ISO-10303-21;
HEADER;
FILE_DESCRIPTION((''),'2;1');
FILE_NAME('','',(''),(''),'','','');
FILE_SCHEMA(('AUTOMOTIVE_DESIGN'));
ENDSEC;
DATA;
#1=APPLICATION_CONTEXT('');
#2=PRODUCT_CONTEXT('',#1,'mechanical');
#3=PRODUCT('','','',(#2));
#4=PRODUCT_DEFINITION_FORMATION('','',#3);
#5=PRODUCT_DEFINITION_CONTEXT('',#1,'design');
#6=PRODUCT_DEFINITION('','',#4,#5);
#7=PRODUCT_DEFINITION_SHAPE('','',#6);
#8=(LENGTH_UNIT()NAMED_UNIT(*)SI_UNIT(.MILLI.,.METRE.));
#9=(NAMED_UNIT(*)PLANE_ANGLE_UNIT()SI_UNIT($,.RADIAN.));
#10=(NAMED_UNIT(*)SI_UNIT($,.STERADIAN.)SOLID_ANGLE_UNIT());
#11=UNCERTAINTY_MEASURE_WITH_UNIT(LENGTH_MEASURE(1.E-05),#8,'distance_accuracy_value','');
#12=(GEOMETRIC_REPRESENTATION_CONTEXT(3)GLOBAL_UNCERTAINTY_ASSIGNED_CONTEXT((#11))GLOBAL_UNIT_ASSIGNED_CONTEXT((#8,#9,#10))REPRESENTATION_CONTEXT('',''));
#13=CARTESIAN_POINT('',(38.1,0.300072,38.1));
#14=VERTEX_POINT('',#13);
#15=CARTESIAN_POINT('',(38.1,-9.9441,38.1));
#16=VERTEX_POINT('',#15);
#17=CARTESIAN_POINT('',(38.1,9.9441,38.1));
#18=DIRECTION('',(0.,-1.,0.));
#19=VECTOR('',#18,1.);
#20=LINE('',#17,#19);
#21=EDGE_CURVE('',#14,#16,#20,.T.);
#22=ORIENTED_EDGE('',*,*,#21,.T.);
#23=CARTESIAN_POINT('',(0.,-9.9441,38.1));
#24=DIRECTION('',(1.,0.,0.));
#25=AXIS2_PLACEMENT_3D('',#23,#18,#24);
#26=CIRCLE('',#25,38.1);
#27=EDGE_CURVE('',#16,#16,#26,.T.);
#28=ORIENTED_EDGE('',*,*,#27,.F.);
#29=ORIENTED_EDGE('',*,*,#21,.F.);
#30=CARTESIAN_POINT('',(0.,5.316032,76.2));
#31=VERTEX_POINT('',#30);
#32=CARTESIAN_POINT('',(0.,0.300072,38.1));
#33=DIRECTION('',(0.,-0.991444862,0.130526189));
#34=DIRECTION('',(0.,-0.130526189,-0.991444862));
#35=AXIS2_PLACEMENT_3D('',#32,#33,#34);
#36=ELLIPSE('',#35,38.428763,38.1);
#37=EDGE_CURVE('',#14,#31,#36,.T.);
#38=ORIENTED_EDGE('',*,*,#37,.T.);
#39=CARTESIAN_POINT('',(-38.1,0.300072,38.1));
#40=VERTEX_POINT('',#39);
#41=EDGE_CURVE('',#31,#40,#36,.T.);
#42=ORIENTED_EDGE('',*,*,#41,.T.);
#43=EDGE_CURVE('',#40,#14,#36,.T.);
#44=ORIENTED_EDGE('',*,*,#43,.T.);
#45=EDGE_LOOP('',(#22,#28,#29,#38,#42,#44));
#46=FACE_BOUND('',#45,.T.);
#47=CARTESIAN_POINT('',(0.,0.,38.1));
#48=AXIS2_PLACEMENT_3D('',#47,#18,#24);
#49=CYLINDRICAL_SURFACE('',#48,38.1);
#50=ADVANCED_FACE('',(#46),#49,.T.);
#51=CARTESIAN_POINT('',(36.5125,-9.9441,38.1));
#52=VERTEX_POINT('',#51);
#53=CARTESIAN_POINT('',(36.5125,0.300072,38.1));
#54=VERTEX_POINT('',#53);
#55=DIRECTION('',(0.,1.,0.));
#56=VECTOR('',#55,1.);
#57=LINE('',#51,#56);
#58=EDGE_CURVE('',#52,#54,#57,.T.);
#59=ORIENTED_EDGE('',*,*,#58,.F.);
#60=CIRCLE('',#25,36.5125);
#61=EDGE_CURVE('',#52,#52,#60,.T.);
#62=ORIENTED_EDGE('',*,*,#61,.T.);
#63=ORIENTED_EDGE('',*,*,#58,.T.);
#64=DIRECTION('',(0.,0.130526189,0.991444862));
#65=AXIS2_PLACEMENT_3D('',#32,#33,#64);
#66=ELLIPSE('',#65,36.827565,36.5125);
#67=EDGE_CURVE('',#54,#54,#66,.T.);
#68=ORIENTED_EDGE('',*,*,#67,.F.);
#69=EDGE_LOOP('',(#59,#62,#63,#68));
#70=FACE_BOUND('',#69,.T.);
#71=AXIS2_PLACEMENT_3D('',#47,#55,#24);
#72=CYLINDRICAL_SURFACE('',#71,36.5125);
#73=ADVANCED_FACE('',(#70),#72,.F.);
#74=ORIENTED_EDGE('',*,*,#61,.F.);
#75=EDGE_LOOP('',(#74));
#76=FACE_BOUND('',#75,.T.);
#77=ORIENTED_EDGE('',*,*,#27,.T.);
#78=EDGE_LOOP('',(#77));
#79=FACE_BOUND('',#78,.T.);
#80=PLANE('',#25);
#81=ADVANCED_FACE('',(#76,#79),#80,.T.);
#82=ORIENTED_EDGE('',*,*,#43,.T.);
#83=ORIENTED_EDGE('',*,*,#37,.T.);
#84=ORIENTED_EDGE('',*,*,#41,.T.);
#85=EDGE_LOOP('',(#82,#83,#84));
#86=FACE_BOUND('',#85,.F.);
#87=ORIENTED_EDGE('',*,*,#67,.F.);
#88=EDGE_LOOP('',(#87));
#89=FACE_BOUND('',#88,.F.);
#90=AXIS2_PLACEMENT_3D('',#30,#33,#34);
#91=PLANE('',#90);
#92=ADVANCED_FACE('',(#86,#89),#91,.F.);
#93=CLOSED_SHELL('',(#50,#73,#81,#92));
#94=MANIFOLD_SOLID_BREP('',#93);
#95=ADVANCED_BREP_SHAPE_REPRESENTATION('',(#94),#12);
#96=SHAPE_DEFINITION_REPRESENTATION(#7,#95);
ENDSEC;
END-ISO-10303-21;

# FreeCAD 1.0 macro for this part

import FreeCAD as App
import Part
import Sketcher
from FreeCAD import Vector
Q = App.Units.Quantity

doc = App.newDocument("Part")
params = doc.addObject("Spreadsheet::Sheet", "Params")
for row, (alias, value) in enumerate([
    ("sketch1_diameter", "3 in"),
    ("sketch1_diameter2", "2.875 in"),
    ("pad1_length", "0.783 in"),
    ("pocket1_length", "3 in"),
], start=1):
    params.set(f"A{row}", alias)
    params.set(f"B{row}", "=" + value)
    params.setAlias(f"B{row}", alias)

body = doc.addObject("PartDesign::Body", "Body")

# Sketch on XZ plane
sketch1 = body.newObject("Sketcher::SketchObject", "Sketch")
sketch1.AttachmentSupport = (doc.getObject("XZ_Plane"), [""])
sketch1.MapMode = "FlatFace"
sketch1.addGeometry([
    Part.Circle(Vector(0, 38, 0), Vector(0, 0, 1), 38),
    Part.Circle(Vector(0, 38, 0), Vector(0, 0, 1), 37),
], False)
sketch1.addConstraint([
    Sketcher.Constraint("Coincident", 1, 3, 0, 3),
    Sketcher.Constraint("PointOnObject", 0, 3, -2),
    Sketcher.Constraint("Diameter", 0, Q("3 in")),
    Sketcher.Constraint("Diameter", 1, Q("2.875 in")),
    Sketcher.Constraint("DistanceY", -1, 1, 0, 3, Q("1.5 in")),
])
sketch1.setExpression("Constraints[2]", "Params.sketch1_diameter")
sketch1.setExpression("Constraints[3]", "Params.sketch1_diameter2")
pad1 = body.newObject("PartDesign::Pad", "Pad")
pad1.Profile = sketch1
pad1.setExpression("Length", "Params.pad1_length")
pad1.Midplane = True

# Sketch on YZ plane
sketch2 = body.newObject("Sketcher::SketchObject", "Sketch001")
sketch2.AttachmentSupport = (doc.getObject("YZ_Plane"), [""])
sketch2.MapMode = "FlatFace"
sketch2.addGeometry([
    Part.LineSegment(Vector(11, 76, 0), Vector(5, 76, 0)),
    Part.LineSegment(Vector(5, 76, 0), Vector(-6, -9, 0)),
    Part.LineSegment(Vector(-6, -9, 0), Vector(11, -9, 0)),
    Part.LineSegment(Vector(11, -9, 0), Vector(11, 76, 0)),
], False)
sketch2.addConstraint([
    Sketcher.Constraint("Coincident", 0, 2, 1, 1),
    Sketcher.Constraint("Coincident", 1, 2, 2, 1),
    Sketcher.Constraint("Coincident", 2, 2, 3, 1),
    Sketcher.Constraint("Coincident", 3, 2, 0, 1),
    Sketcher.Constraint("Horizontal", 0),
    Sketcher.Constraint("Horizontal", 2),
    Sketcher.Constraint("Vertical", 3),
    Sketcher.Constraint("DistanceY", -1, 1, 0, 2, Q("3 in")),
    Sketcher.Constraint("Angle", 1, Q("-97.5 deg")),
    Sketcher.Constraint("DistanceY", 3, 1, 3, 2, 85.512698),
    Sketcher.Constraint("DistanceX", 0, 2, 0, 1, 5.471724),
    Sketcher.Constraint("DistanceX", -1, 1, 0, 2, 5.316032),
])
pocket1 = body.newObject("PartDesign::Pocket", "Pocket")
pocket1.Profile = sketch2
pocket1.setExpression("Length", "Params.pocket1_length")
pocket1.Midplane = True

doc.recompute()
